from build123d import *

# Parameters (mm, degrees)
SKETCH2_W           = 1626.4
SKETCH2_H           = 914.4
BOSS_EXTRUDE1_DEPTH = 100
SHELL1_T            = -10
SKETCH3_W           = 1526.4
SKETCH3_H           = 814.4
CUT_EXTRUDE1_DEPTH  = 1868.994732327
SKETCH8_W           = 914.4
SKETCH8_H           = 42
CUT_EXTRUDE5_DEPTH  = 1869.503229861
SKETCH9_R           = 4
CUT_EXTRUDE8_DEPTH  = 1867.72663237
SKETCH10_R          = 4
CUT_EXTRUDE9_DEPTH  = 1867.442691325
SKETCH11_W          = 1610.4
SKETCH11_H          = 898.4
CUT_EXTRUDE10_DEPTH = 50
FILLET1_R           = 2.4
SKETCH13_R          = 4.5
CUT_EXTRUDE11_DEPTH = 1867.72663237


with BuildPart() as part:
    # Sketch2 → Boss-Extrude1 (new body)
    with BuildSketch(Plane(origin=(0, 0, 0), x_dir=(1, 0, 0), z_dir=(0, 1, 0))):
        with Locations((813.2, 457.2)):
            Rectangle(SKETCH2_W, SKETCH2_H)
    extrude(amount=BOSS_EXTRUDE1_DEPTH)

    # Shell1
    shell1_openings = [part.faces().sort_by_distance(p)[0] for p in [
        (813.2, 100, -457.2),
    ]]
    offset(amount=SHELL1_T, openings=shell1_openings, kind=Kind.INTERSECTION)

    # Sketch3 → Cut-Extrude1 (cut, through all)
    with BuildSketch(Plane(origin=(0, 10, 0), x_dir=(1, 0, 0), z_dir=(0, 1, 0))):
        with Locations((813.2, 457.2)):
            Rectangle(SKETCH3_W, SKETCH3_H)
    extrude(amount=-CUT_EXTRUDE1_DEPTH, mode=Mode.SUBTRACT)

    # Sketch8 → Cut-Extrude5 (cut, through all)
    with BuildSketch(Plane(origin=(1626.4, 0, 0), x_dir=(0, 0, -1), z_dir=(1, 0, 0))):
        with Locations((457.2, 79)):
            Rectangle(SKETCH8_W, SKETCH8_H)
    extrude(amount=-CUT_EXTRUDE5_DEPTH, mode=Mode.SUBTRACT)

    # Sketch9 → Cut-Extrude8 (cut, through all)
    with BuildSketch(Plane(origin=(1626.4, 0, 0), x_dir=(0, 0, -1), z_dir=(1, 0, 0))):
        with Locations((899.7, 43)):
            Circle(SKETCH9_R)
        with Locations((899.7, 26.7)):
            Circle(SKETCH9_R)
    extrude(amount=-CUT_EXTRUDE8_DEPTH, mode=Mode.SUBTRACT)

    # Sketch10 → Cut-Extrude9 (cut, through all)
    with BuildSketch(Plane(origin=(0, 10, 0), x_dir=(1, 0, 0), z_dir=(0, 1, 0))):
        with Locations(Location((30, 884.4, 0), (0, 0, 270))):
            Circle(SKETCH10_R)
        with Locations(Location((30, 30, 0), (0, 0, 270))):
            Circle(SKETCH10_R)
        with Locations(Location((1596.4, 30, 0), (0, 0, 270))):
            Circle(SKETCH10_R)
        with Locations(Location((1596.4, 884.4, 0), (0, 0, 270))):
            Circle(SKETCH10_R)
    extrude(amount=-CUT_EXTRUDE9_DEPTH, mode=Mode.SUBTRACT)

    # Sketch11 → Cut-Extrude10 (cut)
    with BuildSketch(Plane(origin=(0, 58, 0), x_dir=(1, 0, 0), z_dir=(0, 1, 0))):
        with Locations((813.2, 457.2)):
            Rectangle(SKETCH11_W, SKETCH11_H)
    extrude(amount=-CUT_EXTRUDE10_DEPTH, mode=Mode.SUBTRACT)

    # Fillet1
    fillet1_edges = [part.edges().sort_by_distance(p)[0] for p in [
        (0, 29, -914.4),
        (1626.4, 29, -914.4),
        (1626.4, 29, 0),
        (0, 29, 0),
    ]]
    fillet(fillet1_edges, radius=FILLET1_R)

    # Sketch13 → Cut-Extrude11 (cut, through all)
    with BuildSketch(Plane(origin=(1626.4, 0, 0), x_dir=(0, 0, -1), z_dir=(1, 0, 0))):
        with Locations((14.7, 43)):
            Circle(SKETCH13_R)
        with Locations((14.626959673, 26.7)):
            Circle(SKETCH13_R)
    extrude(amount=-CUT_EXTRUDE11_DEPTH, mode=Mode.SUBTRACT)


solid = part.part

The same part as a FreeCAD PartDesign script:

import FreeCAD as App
import Part
import Sketcher
from FreeCAD import Vector


def edges_at(feature, points):
    """Names of the edges that pass closest to the given points."""
    edges = feature.Shape.Edges
    near = lambda p: min(range(len(edges)), key=lambda i: edges[i].distToShape(Part.Vertex(*p))[0])
    return sorted({f"Edge{near(p) + 1}" for p in points})


def faces_at(feature, points):
    """Names of the faces that lie closest to the given points."""
    faces = feature.Shape.Faces
    near = lambda p: min(range(len(faces)), key=lambda i: faces[i].distToShape(Part.Vertex(*p))[0])
    return sorted({f"Face{near(p) + 1}" for p in points})


def add_polygon(sketch, points):
    """Adds a closed chain of lines whose ends are joined by coincident constraints."""
    first, n = sketch.GeometryCount, len(points)
    for a, b in zip(points, points[1:] + points[:1]):
        sketch.addGeometry(Part.LineSegment(App.Vector(*a, 0), App.Vector(*b, 0)), False)
    for i in range(n):
        sketch.addConstraint(Sketcher.Constraint("Coincident", first + i, 2, first + (i + 1) % n, 1))

doc = App.newDocument("Part")
body = doc.addObject("PartDesign::Body", "Body")

# Sketch on XZ plane
sketch1 = doc.addObject("Sketcher::SketchObject", "Sketch")
body.addObject(sketch1)
sketch1.AttachmentSupport = (doc.XZ_Plane, [""])
sketch1.MapMode = "FlatFace"
add_polygon(sketch1, [(0, -914), (0, 0), (1626, 0), (1626, -914)])  # lines 0-3
sketch1.addConstraint(Sketcher.Constraint("Vertical", 0))
sketch1.addConstraint(Sketcher.Constraint("Horizontal", 1))
sketch1.addConstraint(Sketcher.Constraint("Vertical", 2))
sketch1.addConstraint(Sketcher.Constraint("Horizontal", 3))
sketch1.addConstraint(Sketcher.Constraint("Coincident", 0, 2, -1, 1))
sketch1.addConstraint(Sketcher.Constraint("DistanceX", 1, 1, 1, 2, 1626.4))
sketch1.addConstraint(Sketcher.Constraint("DistanceY", 0, 1, 0, 2, 914.4))
pad1 = doc.addObject("PartDesign::Pad", "Pad")
body.addObject(pad1)
pad1.Profile = sketch1
pad1.Length = 100
pad1.Reversed = True
doc.recompute()

thickness = doc.addObject("PartDesign::Thickness", "Thickness")
body.addObject(thickness)
thickness.Base = (pad1, faces_at(pad1, [(813.2, 100, -457.2)]))
thickness.Value = 10
thickness.Reversed = True
thickness.Join = "Intersection"

# Sketch on XZ plane
sketch2 = doc.addObject("Sketcher::SketchObject", "Sketch001")
body.addObject(sketch2)
sketch2.AttachmentSupport = (doc.XZ_Plane, [""])
sketch2.MapMode = "FlatFace"
sketch2.AttachmentOffset = App.Placement(Vector(0, 0, -10), App.Rotation())
add_polygon(sketch2, [(50, -864), (50, -50), (1576, -50), (1576, -864)])  # lines 0-3
sketch2.addConstraint(Sketcher.Constraint("Vertical", 0))
sketch2.addConstraint(Sketcher.Constraint("Horizontal", 1))
sketch2.addConstraint(Sketcher.Constraint("Vertical", 2))
sketch2.addConstraint(Sketcher.Constraint("Horizontal", 3))
sketch2.addConstraint(Sketcher.Constraint("DistanceX", 1, 1, 1, 2, 1526.4))
sketch2.addConstraint(Sketcher.Constraint("DistanceY", 0, 1, 0, 2, 814.4))
sketch2.addConstraint(Sketcher.Constraint("DistanceX", -1, 1, 0, 2, 50.0))
sketch2.addConstraint(Sketcher.Constraint("DistanceY", 0, 2, -1, 1, 50.0))
pocket1 = doc.addObject("PartDesign::Pocket", "Pocket")
body.addObject(pocket1)
pocket1.Profile = sketch2
pocket1.Type = "ThroughAll"
pocket1.Reversed = True

# Sketch on YZ plane
sketch3 = doc.addObject("Sketcher::SketchObject", "Sketch002")
body.addObject(sketch3)
sketch3.AttachmentSupport = (doc.YZ_Plane, [""])
sketch3.MapMode = "FlatFace"
sketch3.AttachmentOffset = App.Placement(Vector(0, 0, 1626.4), App.Rotation())
add_polygon(sketch3, [(100, 0), (58, 0), (58, -914), (100, -914)])  # lines 0-3
sketch3.addConstraint(Sketcher.Constraint("Horizontal", 0))
sketch3.addConstraint(Sketcher.Constraint("Vertical", 1))
sketch3.addConstraint(Sketcher.Constraint("Horizontal", 2))
sketch3.addConstraint(Sketcher.Constraint("Vertical", 3))
sketch3.addConstraint(Sketcher.Constraint("PointOnObject", 0, 2, -1))
sketch3.addConstraint(Sketcher.Constraint("DistanceX", 0, 2, 0, 1, 42.0))
sketch3.addConstraint(Sketcher.Constraint("DistanceY", 1, 2, 1, 1, 914.4))
sketch3.addConstraint(Sketcher.Constraint("DistanceX", -1, 1, 0, 2, 58.0))
pocket2 = doc.addObject("PartDesign::Pocket", "Pocket001")
body.addObject(pocket2)
pocket2.Profile = sketch3
pocket2.Type = "ThroughAll"

# Sketch on YZ plane
sketch4 = doc.addObject("Sketcher::SketchObject", "Sketch003")
body.addObject(sketch4)
sketch4.AttachmentSupport = (doc.YZ_Plane, [""])
sketch4.MapMode = "FlatFace"
sketch4.AttachmentOffset = App.Placement(Vector(0, 0, 1626.4), App.Rotation())
sketch4.addGeometry(Part.Circle(Vector(43, -899.7, 0), Vector(0, 0, 1), 4), False)
sketch4.addGeometry(Part.Circle(Vector(26.7, -899.7, 0), Vector(0, 0, 1), 4), False)
sketch4.addConstraint(Sketcher.Constraint("Equal", 0, 1))
sketch4.addConstraint(Sketcher.Constraint("Horizontal", 0, 3, 1, 3))
sketch4.addConstraint(Sketcher.Constraint("Diameter", 0, 8.0))
sketch4.addConstraint(Sketcher.Constraint("DistanceX", -1, 1, 0, 3, 43.0))
sketch4.addConstraint(Sketcher.Constraint("DistanceY", 0, 3, -1, 1, 899.7))
sketch4.addConstraint(Sketcher.Constraint("DistanceX", -1, 1, 1, 3, 26.7))
pocket3 = doc.addObject("PartDesign::Pocket", "Pocket002")
body.addObject(pocket3)
pocket3.Profile = sketch4
pocket3.Type = "ThroughAll"

# Sketch on XZ plane
sketch5 = doc.addObject("Sketcher::SketchObject", "Sketch004")
body.addObject(sketch5)
sketch5.AttachmentSupport = (doc.XZ_Plane, [""])
sketch5.MapMode = "FlatFace"
sketch5.AttachmentOffset = App.Placement(Vector(0, 0, -10), App.Rotation())
sketch5.addGeometry(Part.Circle(Vector(30, -884.4, 0), Vector(0, 0, 1), 4), False)
sketch5.addGeometry(Part.Circle(Vector(30, -30, 0), Vector(0, 0, 1), 4), False)
sketch5.addGeometry(Part.Circle(Vector(1596.4, -30, 0), Vector(0, 0, 1), 4), False)
sketch5.addGeometry(Part.Circle(Vector(1596.4, -884.4, 0), Vector(0, 0, 1), 4), False)
sketch5.addConstraint(Sketcher.Constraint("Equal", 0, 1))
sketch5.addConstraint(Sketcher.Constraint("Equal", 1, 2))
sketch5.addConstraint(Sketcher.Constraint("Equal", 2, 3))
sketch5.addConstraint(Sketcher.Constraint("Horizontal", 1, 3, 2, 3))
sketch5.addConstraint(Sketcher.Constraint("Horizontal", 0, 3, 3, 3))
sketch5.addConstraint(Sketcher.Constraint("Vertical", 0, 3, 1, 3))
sketch5.addConstraint(Sketcher.Constraint("Vertical", 2, 3, 3, 3))
sketch5.addConstraint(Sketcher.Constraint("Diameter", 0, 8.0))
sketch5.addConstraint(Sketcher.Constraint("DistanceX", -1, 1, 0, 3, 30.0))
sketch5.addConstraint(Sketcher.Constraint("DistanceY", 1, 3, -1, 1, 30.0))
sketch5.addConstraint(Sketcher.Constraint("DistanceY", 0, 3, -1, 1, 884.4))
sketch5.addConstraint(Sketcher.Constraint("DistanceX", -1, 1, 2, 3, 1596.4))
pocket4 = doc.addObject("PartDesign::Pocket", "Pocket003")
body.addObject(pocket4)
pocket4.Profile = sketch5
pocket4.Type = "ThroughAll"
pocket4.Reversed = True

# Sketch on XZ plane
sketch6 = doc.addObject("Sketcher::SketchObject", "Sketch005")
body.addObject(sketch6)
sketch6.AttachmentSupport = (doc.XZ_Plane, [""])
sketch6.MapMode = "FlatFace"
sketch6.AttachmentOffset = App.Placement(Vector(0, 0, -58), App.Rotation())
add_polygon(sketch6, [(8, -906), (8, -8), (1618, -8), (1618, -906)])  # lines 0-3
sketch6.addConstraint(Sketcher.Constraint("Vertical", 0))
sketch6.addConstraint(Sketcher.Constraint("Horizontal", 1))
sketch6.addConstraint(Sketcher.Constraint("Vertical", 2))
sketch6.addConstraint(Sketcher.Constraint("Horizontal", 3))
sketch6.addConstraint(Sketcher.Constraint("DistanceX", 1, 1, 1, 2, 1610.4))
sketch6.addConstraint(Sketcher.Constraint("DistanceY", 0, 1, 0, 2, 898.4))
sketch6.addConstraint(Sketcher.Constraint("DistanceX", -1, 1, 0, 2, 8.0))
sketch6.addConstraint(Sketcher.Constraint("DistanceY", 0, 2, -1, 1, 8.0))
pocket5 = doc.addObject("PartDesign::Pocket", "Pocket004")
body.addObject(pocket5)
pocket5.Profile = sketch6
pocket5.Length = 50
pocket5.Reversed = True
doc.recompute()

fillet = doc.addObject("PartDesign::Fillet", "Fillet")
body.addObject(fillet)
fillet.Base = (pocket5, edges_at(pocket5, [
    (0, 29, -914.4),
    (1626.4, 29, -914.4),
    (1626.4, 29, 0),
    (0, 29, 0),
]))
fillet.Radius = 2.4

# Sketch on YZ plane
sketch7 = doc.addObject("Sketcher::SketchObject", "Sketch006")
body.addObject(sketch7)
sketch7.AttachmentSupport = (doc.YZ_Plane, [""])
sketch7.MapMode = "FlatFace"
sketch7.AttachmentOffset = App.Placement(Vector(0, 0, 1626.4), App.Rotation())
sketch7.addGeometry(Part.Circle(Vector(43, -14.7, 0), Vector(0, 0, 1), 4.5), False)
sketch7.addGeometry(Part.Circle(Vector(26.7, -14.6, 0), Vector(0, 0, 1), 4.5), False)
sketch7.addConstraint(Sketcher.Constraint("Equal", 0, 1))
sketch7.addConstraint(Sketcher.Constraint("Diameter", 0, 9.0))
sketch7.addConstraint(Sketcher.Constraint("DistanceX", -1, 1, 0, 3, 43.0))
sketch7.addConstraint(Sketcher.Constraint("DistanceY", 0, 3, -1, 1, 14.7))
sketch7.addConstraint(Sketcher.Constraint("DistanceX", -1, 1, 1, 3, 26.7))
sketch7.addConstraint(Sketcher.Constraint("DistanceY", 1, 3, -1, 1, 14.62696))
pocket6 = doc.addObject("PartDesign::Pocket", "Pocket005")
body.addObject(pocket6)
pocket6.Profile = sketch7
pocket6.Type = "ThroughAll"

doc.recompute()
